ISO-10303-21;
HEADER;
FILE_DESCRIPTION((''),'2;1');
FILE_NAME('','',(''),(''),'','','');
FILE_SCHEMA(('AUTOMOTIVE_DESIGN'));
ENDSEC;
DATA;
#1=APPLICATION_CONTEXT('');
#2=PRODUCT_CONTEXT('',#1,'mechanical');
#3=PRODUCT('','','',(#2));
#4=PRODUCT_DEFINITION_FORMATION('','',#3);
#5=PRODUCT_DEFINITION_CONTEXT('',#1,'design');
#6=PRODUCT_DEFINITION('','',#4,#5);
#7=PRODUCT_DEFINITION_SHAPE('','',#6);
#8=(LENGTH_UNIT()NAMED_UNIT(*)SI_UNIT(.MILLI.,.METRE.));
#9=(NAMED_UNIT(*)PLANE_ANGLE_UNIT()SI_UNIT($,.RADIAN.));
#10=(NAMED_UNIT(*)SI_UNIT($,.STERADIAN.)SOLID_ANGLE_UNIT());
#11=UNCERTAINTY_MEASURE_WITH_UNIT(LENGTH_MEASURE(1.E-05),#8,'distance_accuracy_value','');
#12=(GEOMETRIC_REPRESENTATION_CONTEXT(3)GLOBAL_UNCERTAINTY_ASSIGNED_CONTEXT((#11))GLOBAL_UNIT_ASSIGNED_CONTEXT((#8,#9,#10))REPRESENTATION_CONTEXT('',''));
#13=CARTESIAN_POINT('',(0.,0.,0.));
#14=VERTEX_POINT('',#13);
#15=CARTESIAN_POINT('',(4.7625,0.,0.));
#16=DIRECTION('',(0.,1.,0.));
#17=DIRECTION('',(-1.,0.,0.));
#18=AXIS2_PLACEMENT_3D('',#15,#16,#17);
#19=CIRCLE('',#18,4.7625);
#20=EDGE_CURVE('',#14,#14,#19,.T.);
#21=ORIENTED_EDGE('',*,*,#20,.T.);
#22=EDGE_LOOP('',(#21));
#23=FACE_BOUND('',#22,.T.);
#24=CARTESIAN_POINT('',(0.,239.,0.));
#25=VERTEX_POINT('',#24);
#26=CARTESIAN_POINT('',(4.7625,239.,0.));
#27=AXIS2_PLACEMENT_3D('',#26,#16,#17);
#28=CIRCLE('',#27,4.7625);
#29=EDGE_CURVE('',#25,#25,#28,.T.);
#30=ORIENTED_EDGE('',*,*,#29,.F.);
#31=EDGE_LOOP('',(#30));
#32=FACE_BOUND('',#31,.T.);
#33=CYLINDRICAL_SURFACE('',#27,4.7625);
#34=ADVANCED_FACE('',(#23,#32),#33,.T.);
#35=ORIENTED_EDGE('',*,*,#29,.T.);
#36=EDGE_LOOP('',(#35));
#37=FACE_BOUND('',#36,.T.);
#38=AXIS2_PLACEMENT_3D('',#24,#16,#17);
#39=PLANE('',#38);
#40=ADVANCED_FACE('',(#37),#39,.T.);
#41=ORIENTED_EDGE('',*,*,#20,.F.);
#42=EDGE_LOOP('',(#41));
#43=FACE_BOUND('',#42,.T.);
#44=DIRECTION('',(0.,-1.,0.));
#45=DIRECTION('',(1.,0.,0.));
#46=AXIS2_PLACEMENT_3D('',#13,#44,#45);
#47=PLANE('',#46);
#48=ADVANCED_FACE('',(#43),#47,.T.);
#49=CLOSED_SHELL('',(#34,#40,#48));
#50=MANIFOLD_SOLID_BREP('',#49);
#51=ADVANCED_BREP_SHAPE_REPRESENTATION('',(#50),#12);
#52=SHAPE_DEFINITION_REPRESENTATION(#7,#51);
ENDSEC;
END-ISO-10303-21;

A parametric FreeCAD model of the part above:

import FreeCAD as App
import Part
import Sketcher


def add_polygon(sketch, points):
    """Adds a closed chain of lines whose ends are joined by coincident constraints."""
    first, n = sketch.GeometryCount, len(points)
    for a, b in zip(points, points[1:] + points[:1]):
        sketch.addGeometry(Part.LineSegment(App.Vector(*a, 0), App.Vector(*b, 0)), False)
    for i in range(n):
        sketch.addConstraint(Sketcher.Constraint("Coincident", first + i, 2, first + (i + 1) % n, 1))

doc = App.newDocument("Part")
body = doc.addObject("PartDesign::Body", "Body")

# Sketch on XY plane
sketch1 = body.newObject("Sketcher::SketchObject", "Sketch")
sketch1.AttachmentSupport = (doc.getObject("XY_Plane"), [""])
sketch1.MapMode = "FlatFace"
add_polygon(sketch1, [(0, 239), (0, 0), (4.8, 0), (4.8, 239)])  # lines 0-3
sketch1.addGeometry(Part.LineSegment(App.Vector(4.8, 239, 0), App.Vector(4.8, 0, 0)), True)  # axis
sketch1.addConstraint([
    Sketcher.Constraint("Vertical", 0),
    Sketcher.Constraint("Horizontal", 1),
    Sketcher.Constraint("Vertical", 2),
    Sketcher.Constraint("Horizontal", 3),
    Sketcher.Constraint("Vertical", 4),
    Sketcher.Constraint("Coincident", 0, 2, -1, 1),
    Sketcher.Constraint("Coincident", 4, 1, 2, 2),
    Sketcher.Constraint("PointOnObject", 4, 2, -1),
    Sketcher.Constraint("DistanceY", 0, 2, 0, 1, 239.0),
    Sketcher.Constraint("DistanceX", 1, 1, 1, 2, 4.7625),
])
revolution = body.newObject("PartDesign::Revolution", "Revolution")
revolution.Profile = sketch1
revolution.ReferenceAxis = (sketch1, ["Axis0"])
revolution.Angle = 360

doc.recompute()
